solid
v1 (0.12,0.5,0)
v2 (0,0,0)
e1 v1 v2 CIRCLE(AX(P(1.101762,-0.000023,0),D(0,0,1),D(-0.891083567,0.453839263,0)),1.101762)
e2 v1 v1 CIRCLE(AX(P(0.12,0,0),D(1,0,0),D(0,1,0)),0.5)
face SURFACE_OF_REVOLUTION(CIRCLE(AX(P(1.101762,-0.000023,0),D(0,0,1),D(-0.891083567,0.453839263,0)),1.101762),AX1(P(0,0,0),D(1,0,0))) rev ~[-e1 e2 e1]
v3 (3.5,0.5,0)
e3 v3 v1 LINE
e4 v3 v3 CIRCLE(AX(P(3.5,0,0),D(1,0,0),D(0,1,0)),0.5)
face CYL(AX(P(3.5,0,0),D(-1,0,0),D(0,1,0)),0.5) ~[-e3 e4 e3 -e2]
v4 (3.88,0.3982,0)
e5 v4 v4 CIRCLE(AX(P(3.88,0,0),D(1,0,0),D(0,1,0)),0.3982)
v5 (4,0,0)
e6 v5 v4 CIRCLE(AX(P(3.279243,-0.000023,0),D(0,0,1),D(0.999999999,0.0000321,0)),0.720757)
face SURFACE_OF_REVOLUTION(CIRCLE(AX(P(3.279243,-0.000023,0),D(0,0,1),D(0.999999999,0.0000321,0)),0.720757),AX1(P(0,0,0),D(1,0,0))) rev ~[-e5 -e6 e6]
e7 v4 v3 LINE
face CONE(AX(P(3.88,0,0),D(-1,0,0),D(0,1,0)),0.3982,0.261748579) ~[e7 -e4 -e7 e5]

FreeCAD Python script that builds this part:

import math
import FreeCAD as App
import Part
import Sketcher
from FreeCAD import Vector

doc = App.newDocument("Part")
body = doc.addObject("PartDesign::Body", "Body")

sketch1 = doc.addObject("Sketcher::SketchObject", "Sketch")
body.addObject(sketch1)
sketch1.AttachmentSupport = (doc.XY_Plane, [""])
sketch1.MapMode = "FlatFace"
sketch1.addGeometry(Part.ArcOfCircle(Part.Circle(Vector(3.28, 0, 0), Vector(0, 0, 1), 0.72), math.radians(0), math.radians(34)), False)
sketch1.addGeometry(Part.LineSegment(Vector(3.88, 0.4, 0), Vector(3.5, 0.5, 0)), False)
sketch1.addGeometry(Part.LineSegment(Vector(3.5, 0.5, 0), Vector(0.12, 0.5, 0)), False)
sketch1.addGeometry(Part.ArcOfCircle(Part.Circle(Vector(1.1, 0, 0), Vector(0, 0, 1), 1.1), math.radians(153), math.radians(180)), False)
sketch1.addGeometry(Part.LineSegment(Vector(0, 0, 0), Vector(4, 0, 0)), False)
sketch1.addConstraint(Sketcher.Constraint("Coincident", 0, 2, 1, 1))
sketch1.addConstraint(Sketcher.Constraint("Coincident", 1, 2, 2, 1))
sketch1.addConstraint(Sketcher.Constraint("Coincident", 2, 2, 3, 1))
sketch1.addConstraint(Sketcher.Constraint("Coincident", 3, 2, 4, 1))
sketch1.addConstraint(Sketcher.Constraint("Coincident", 4, 2, 0, 1))
sketch1.addConstraint(Sketcher.Constraint("Horizontal", 2))
sketch1.addConstraint(Sketcher.Constraint("Horizontal", 4))
sketch1.addConstraint(Sketcher.Constraint("Coincident", 3, 2, -1, 1))
sketch1.addConstraint(Sketcher.Constraint("PointOnObject", 0, 3, -1))
sketch1.addConstraint(Sketcher.Constraint("PointOnObject", 3, 3, -1))
sketch1.addConstraint(Sketcher.Constraint("DistanceX", 4, 1, 4, 2, 4.0))
sketch1.addConstraint(Sketcher.Constraint("DistanceY", -1, 1, 1, 2, 0.5))
sketch1.addConstraint(Sketcher.Constraint("DistanceX", 1, 2, 4, 2, 0.5))
sketch1.addConstraint(Sketcher.Constraint("DistanceX", -1, 1, 2, 2, 0.12))
sketch1.addConstraint(Sketcher.Constraint("DistanceX", 0, 2, 4, 2, 0.12))
sketch1.addConstraint(Sketcher.Constraint("Radius", 0, 0.7206))
revolution = doc.addObject("PartDesign::Revolution", "Revolution")
body.addObject(revolution)
revolution.Profile = sketch1
revolution.ReferenceAxis = (sketch1, ["H_Axis"])
revolution.Angle = 360

doc.recompute()
